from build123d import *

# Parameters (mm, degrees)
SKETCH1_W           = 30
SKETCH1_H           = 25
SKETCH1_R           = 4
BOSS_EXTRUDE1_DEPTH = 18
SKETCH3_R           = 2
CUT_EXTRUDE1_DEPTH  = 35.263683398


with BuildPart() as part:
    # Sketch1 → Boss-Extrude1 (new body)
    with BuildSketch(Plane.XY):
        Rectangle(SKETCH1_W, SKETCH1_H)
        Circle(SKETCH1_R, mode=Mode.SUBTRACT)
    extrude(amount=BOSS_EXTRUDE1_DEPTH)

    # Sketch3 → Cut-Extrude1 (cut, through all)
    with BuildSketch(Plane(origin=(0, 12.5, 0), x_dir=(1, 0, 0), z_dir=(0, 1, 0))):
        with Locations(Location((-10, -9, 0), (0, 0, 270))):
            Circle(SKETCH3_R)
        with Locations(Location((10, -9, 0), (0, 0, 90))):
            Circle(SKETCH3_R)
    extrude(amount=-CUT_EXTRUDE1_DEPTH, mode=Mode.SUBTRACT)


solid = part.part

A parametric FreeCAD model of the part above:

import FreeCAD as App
import Part
import Sketcher

V = App.Vector

doc = App.newDocument("Part")
body = doc.addObject("PartDesign::Body", "Body")

# Sketch on XY plane
sketch1 = body.newObject("Sketcher::SketchObject", "Sketch")
sketch1.AttachmentSupport = (doc.getObject("XY_Plane"), [""])
sketch1.MapMode = "FlatFace"
sketch1.addGeometry([
    Part.LineSegment(V(-15, 12.5, 0), V(-15, -12.5, 0)),  # 0
    Part.LineSegment(V(-15, -12.5, 0), V(15, -12.5, 0)),  # 1
    Part.LineSegment(V(15, -12.5, 0), V(15, 12.5, 0)),  # 2
    Part.LineSegment(V(15, 12.5, 0), V(-15, 12.5, 0)),  # 3
    Part.Circle(V(0, 0, 0), V(0, 0, 1), 4),  # 4
], False)
sketch1.addConstraint([
    Sketcher.Constraint("Coincident", 0, 2, 1, 1),
    Sketcher.Constraint("Coincident", 1, 2, 2, 1),
    Sketcher.Constraint("Coincident", 2, 2, 3, 1),
    Sketcher.Constraint("Coincident", 3, 2, 0, 1),
    Sketcher.Constraint("Vertical", 0),
    Sketcher.Constraint("Horizontal", 1),
    Sketcher.Constraint("Vertical", 2),
    Sketcher.Constraint("Horizontal", 3),
    Sketcher.Constraint("Coincident", 4, 3, -1, 1),
    Sketcher.Constraint("Symmetric", 0, 2, 2, 2, -1, 1),
    Sketcher.Constraint("Diameter", 4, 8.0),
    Sketcher.Constraint("DistanceX", 1, 1, 1, 2, 30.0),
    Sketcher.Constraint("DistanceY", 0, 2, 0, 1, 25.0),
])
pad1 = body.newObject("PartDesign::Pad", "Pad")
pad1.Profile = sketch1
pad1.Length = 18

# Sketch on XZ plane
sketch2 = body.newObject("Sketcher::SketchObject", "Sketch001")
sketch2.AttachmentSupport = (doc.getObject("XZ_Plane"), [""])
sketch2.MapMode = "FlatFace"
sketch2.AttachmentOffset = App.Placement(V(0, 0, -12.5), App.Rotation())
sketch2.addGeometry([
    Part.Circle(V(-10, 9, 0), V(0, 0, 1), 2),
    Part.Circle(V(10, 9, 0), V(0, 0, 1), 2),
], False)
sketch2.addConstraint([
    Sketcher.Constraint("Equal", 0, 1),
    Sketcher.Constraint("Symmetric", 0, 3, 1, 3, -2),
    Sketcher.Constraint("Diameter", 0, 4.0),
    Sketcher.Constraint("DistanceX", 0, 3, -1, 1, 10.0),
    Sketcher.Constraint("DistanceY", -1, 1, 0, 3, 9.0),
])
pocket1 = body.newObject("PartDesign::Pocket", "Pocket")
pocket1.Profile = sketch2
pocket1.Type = "ThroughAll"
pocket1.Reversed = True

doc.recompute()
